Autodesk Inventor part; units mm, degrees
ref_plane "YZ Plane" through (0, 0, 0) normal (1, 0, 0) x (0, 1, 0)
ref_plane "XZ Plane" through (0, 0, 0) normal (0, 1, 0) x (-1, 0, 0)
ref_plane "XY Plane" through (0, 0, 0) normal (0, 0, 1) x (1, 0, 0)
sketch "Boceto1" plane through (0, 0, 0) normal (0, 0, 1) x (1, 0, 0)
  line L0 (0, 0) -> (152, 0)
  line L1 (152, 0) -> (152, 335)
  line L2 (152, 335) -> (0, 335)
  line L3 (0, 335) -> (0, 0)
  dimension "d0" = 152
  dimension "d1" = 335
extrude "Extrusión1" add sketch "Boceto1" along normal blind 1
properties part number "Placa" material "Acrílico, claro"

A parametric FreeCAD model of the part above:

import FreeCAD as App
import Part
import Sketcher


def add_polygon(sketch, points):
    """Adds a closed chain of lines whose ends are joined by coincident constraints."""
    first, n = sketch.GeometryCount, len(points)
    for a, b in zip(points, points[1:] + points[:1]):
        sketch.addGeometry(Part.LineSegment(App.Vector(*a, 0), App.Vector(*b, 0)), False)
    for i in range(n):
        sketch.addConstraint(Sketcher.Constraint("Coincident", first + i, 2, first + (i + 1) % n, 1))

doc = App.newDocument("Part")
body = doc.addObject("PartDesign::Body", "Body")

sketch1 = body.newObject("Sketcher::SketchObject", "Sketch")
sketch1.AttachmentSupport = (doc.getObject("XY_Plane"), [""])
sketch1.MapMode = "FlatFace"
add_polygon(sketch1, [(0, 335), (0, 0), (152, 0), (152, 335)])
sketch1.addConstraint(Sketcher.Constraint("Vertical", 0))
sketch1.addConstraint(Sketcher.Constraint("Horizontal", 1))
sketch1.addConstraint(Sketcher.Constraint("Vertical", 2))
sketch1.addConstraint(Sketcher.Constraint("Horizontal", 3))
sketch1.addConstraint(Sketcher.Constraint("Coincident", 0, 2, -1, 1))
sketch1.addConstraint(Sketcher.Constraint("DistanceX", 1, 1, 1, 2, 152.0))
sketch1.addConstraint(Sketcher.Constraint("DistanceY", 0, 2, 0, 1, 335.0))
pad1 = body.newObject("PartDesign::Pad", "Pad")
pad1.Profile = sketch1
pad1.Length = 1

doc.recompute()
